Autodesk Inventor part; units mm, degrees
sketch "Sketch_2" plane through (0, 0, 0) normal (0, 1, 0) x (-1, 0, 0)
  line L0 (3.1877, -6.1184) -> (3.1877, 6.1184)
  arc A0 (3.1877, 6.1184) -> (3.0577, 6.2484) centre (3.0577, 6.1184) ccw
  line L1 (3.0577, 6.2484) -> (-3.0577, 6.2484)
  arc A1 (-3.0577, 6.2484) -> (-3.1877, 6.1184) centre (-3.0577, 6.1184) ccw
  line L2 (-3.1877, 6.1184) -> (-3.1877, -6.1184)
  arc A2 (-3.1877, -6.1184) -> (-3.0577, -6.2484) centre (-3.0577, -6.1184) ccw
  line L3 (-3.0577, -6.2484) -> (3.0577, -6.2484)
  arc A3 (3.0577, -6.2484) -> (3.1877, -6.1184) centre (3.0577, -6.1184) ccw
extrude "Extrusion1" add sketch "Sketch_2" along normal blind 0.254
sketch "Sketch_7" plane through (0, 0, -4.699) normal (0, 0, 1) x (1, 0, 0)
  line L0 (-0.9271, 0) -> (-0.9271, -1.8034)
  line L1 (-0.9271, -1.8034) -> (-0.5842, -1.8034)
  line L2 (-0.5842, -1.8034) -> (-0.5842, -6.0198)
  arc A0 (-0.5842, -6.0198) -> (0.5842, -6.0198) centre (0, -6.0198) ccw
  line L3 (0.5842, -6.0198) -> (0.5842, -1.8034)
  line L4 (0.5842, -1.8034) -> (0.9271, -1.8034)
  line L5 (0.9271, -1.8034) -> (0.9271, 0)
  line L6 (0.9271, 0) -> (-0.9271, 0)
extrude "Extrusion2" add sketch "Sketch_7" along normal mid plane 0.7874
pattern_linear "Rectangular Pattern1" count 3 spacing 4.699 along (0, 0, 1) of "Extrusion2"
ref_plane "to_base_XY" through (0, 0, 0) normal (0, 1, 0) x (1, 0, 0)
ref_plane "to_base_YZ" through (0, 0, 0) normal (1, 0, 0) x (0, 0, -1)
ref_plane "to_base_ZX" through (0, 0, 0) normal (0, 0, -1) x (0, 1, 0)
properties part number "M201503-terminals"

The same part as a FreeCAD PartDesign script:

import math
import FreeCAD as App
import Part
import Sketcher
Q = App.Units.Quantity

doc = App.newDocument("Part")
params = doc.addObject("Spreadsheet::Sheet", "Params")
for row, (alias, value) in enumerate([
    ("pad1_length", "0.01 in"),
    ("sketch2_radius", "0.023 in"),
    ("sketch2_width", "0.073 in"),
    ("sketch2_height", "0.071 in"),
    ("sketch2_height2", "0.166 in"),
    ("pad2_length", "0.031 in"),
    ("linearpattern_pitch", "0.185 in"),
], start=1):
    params.set(f"A{row}", alias)
    params.set(f"B{row}", "=" + value)
    params.setAlias(f"B{row}", alias)

body = doc.addObject("PartDesign::Body", "Body")

# Sketch on XZ plane
sketch1 = doc.addObject("Sketcher::SketchObject", "Sketch")
body.addObject(sketch1)
sketch1.AttachmentSupport = (doc.XZ_Plane, [""])
sketch1.MapMode = "FlatFace"
sketch1.addGeometry([
    Part.ArcOfCircle(Part.Circle(App.Vector(-3.06, -6.12, 0), App.Vector(0, 0, 1), 0.13), math.radians(180), math.radians(270)),  # 0
    Part.LineSegment(App.Vector(-3.19, -6.12, 0), App.Vector(-3.19, 6.12, 0)),  # 1
    Part.ArcOfCircle(Part.Circle(App.Vector(-3.06, 6.12, 0), App.Vector(0, 0, 1), 0.13), math.radians(90), math.radians(180)),  # 2
    Part.LineSegment(App.Vector(-3.06, 6.25, 0), App.Vector(3.06, 6.25, 0)),  # 3
    Part.ArcOfCircle(Part.Circle(App.Vector(3.06, 6.12, 0), App.Vector(0, 0, 1), 0.13), math.radians(0), math.radians(90)),  # 4
    Part.LineSegment(App.Vector(3.19, 6.12, 0), App.Vector(3.19, -6.12, 0)),  # 5
    Part.ArcOfCircle(Part.Circle(App.Vector(3.06, -6.12, 0), App.Vector(0, 0, 1), 0.13), math.radians(-90), math.radians(0)),  # 6
    Part.LineSegment(App.Vector(3.06, -6.25, 0), App.Vector(-3.06, -6.25, 0)),  # 7
], False)
sketch1.addConstraint([
    Sketcher.Constraint("Tangent", 0, 1, 1, 1),
    Sketcher.Constraint("Tangent", 1, 2, 2, 2),
    Sketcher.Constraint("Tangent", 2, 1, 3, 1),
    Sketcher.Constraint("Tangent", 3, 2, 4, 2),
    Sketcher.Constraint("Tangent", 4, 1, 5, 1),
    Sketcher.Constraint("Tangent", 5, 2, 6, 2),
    Sketcher.Constraint("Tangent", 6, 1, 7, 1),
    Sketcher.Constraint("Tangent", 7, 2, 0, 2),
    Sketcher.Constraint("Vertical", 1),
    Sketcher.Constraint("Horizontal", 3),
    Sketcher.Constraint("Vertical", 5),
    Sketcher.Constraint("Horizontal", 7),
    Sketcher.Constraint("Equal", 0, 2),
    Sketcher.Constraint("Equal", 2, 4),
    Sketcher.Constraint("Equal", 4, 6),
    Sketcher.Constraint("Symmetric", 0, 3, 4, 3, -1, 1),
    Sketcher.Constraint("Radius", 0, Q("0.13 mm")),
    Sketcher.Constraint("DistanceY", -1, 1, 2, 1, Q("0.246 in")),
    Sketcher.Constraint("DistanceX", 1, 2, 4, 1, Q("0.251 in")),
])
pad1 = doc.addObject("PartDesign::Pad", "Pad")
body.addObject(pad1)
pad1.Profile = sketch1
pad1.setExpression("Length", "Params.pad1_length")
pad1.Reversed = True

# Sketch on XY plane
sketch2 = doc.addObject("Sketcher::SketchObject", "Sketch001")
body.addObject(sketch2)
sketch2.AttachmentSupport = (doc.XY_Plane, [""])
sketch2.MapMode = "FlatFace"
sketch2.AttachmentOffset = App.Placement(App.Vector(0, 0, -0.185 * 25.4), App.Rotation())
sketch2.addGeometry([
    Part.LineSegment(App.Vector(0.93, 0, 0), App.Vector(-0.93, 0, 0)),  # 0
    Part.LineSegment(App.Vector(-0.93, 0, 0), App.Vector(-0.93, -1.8, 0)),  # 1
    Part.LineSegment(App.Vector(-0.93, -1.8, 0), App.Vector(-0.58, -1.8, 0)),  # 2
    Part.LineSegment(App.Vector(-0.58, -1.8, 0), App.Vector(-0.58, -6.02, 0)),  # 3
    Part.ArcOfCircle(Part.Circle(App.Vector(0, -6.02, 0), App.Vector(0, 0, 1), 0.58), math.radians(180), math.radians(360)),  # 4
    Part.LineSegment(App.Vector(0.58, -6.02, 0), App.Vector(0.58, -1.8, 0)),  # 5
    Part.LineSegment(App.Vector(0.58, -1.8, 0), App.Vector(0.93, -1.8, 0)),  # 6
    Part.LineSegment(App.Vector(0.93, -1.8, 0), App.Vector(0.93, 0, 0)),  # 7
], False)
sketch2.addConstraint([
    Sketcher.Constraint("Coincident", 0, 2, 1, 1),
    Sketcher.Constraint("Coincident", 1, 2, 2, 1),
    Sketcher.Constraint("Coincident", 2, 2, 3, 1),
    Sketcher.Constraint("Tangent", 3, 2, 4, 1),
    Sketcher.Constraint("Tangent", 4, 2, 5, 1),
    Sketcher.Constraint("Coincident", 5, 2, 6, 1),
    Sketcher.Constraint("Coincident", 6, 2, 7, 1),
    Sketcher.Constraint("Coincident", 7, 2, 0, 1),
    Sketcher.Constraint("Horizontal", 0),
    Sketcher.Constraint("Vertical", 1),
    Sketcher.Constraint("Horizontal", 2),
    Sketcher.Constraint("Vertical", 3),
    Sketcher.Constraint("Vertical", 5),
    Sketcher.Constraint("Horizontal", 6),
    Sketcher.Constraint("Vertical", 7),
    Sketcher.Constraint("Symmetric", 0, 2, 7, 2, -1, 1),
    Sketcher.Constraint("Symmetric", 2, 2, 5, 2, -2),
    Sketcher.Constraint("Radius", 4, Q("0.023 in")),
    Sketcher.Constraint("DistanceX", 0, 2, 0, 1, Q("0.073 in")),
    Sketcher.Constraint("DistanceY", 1, 2, 1, 1, Q("0.071 in")),
    Sketcher.Constraint("DistanceY", 3, 2, 3, 1, Q("0.166 in")),
])
sketch2.setExpression("Constraints[17]", "Params.sketch2_radius")
sketch2.setExpression("Constraints[18]", "Params.sketch2_width")
sketch2.setExpression("Constraints[19]", "Params.sketch2_height")
sketch2.setExpression("Constraints[20]", "Params.sketch2_height2")
pad2 = doc.addObject("PartDesign::Pad", "Pad001")
body.addObject(pad2)
pad2.Profile = sketch2
pad2.setExpression("Length", "Params.pad2_length")
pad2.Midplane = True
doc.recompute()

linearpattern = doc.addObject("PartDesign::LinearPattern", "LinearPattern")
body.addObject(linearpattern)
linearpattern.Originals = [pad2]
linearpattern.Direction = (doc.Z_Axis, [""])
linearpattern.Mode = "offset"
linearpattern.setExpression("Offset", "Params.linearpattern_pitch")
linearpattern.Occurrences = 3
body.Tip = linearpattern

doc.recompute()
